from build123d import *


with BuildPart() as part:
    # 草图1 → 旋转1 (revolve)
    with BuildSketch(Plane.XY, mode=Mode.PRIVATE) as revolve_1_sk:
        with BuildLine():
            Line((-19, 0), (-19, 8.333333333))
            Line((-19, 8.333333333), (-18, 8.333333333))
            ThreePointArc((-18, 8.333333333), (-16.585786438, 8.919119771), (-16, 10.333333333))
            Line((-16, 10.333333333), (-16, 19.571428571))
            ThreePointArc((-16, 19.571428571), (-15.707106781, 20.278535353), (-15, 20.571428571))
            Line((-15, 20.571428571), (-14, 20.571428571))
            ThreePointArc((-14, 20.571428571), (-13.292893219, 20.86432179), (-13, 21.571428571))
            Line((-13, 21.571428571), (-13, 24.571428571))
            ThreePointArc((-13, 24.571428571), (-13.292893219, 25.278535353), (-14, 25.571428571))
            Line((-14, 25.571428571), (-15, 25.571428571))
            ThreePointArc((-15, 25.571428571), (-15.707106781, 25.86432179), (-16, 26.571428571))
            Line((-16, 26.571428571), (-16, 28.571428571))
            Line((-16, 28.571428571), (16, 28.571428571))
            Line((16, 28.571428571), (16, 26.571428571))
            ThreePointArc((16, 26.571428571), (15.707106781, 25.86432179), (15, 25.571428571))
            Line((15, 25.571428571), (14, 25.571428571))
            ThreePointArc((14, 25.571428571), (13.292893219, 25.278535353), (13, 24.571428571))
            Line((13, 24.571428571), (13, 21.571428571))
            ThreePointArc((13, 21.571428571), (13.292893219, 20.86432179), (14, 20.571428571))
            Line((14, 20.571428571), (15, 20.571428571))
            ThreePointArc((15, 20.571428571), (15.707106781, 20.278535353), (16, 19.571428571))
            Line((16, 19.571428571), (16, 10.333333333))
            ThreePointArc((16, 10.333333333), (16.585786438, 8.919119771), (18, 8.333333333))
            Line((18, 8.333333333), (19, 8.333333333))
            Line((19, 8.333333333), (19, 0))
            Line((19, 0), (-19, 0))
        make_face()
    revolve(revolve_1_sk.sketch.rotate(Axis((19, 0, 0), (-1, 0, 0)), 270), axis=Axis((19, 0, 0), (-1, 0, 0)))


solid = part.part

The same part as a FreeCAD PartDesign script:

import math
import FreeCAD as App
import Part
import Sketcher
from FreeCAD import Vector

doc = App.newDocument("Part")
body = doc.addObject("PartDesign::Body", "Body")

sketch1 = doc.addObject("Sketcher::SketchObject", "Sketch")
body.addObject(sketch1)
sketch1.AttachmentSupport = (doc.XY_Plane, [""])
sketch1.MapMode = "FlatFace"
sketch1.addGeometry(Part.LineSegment(Vector(-19, 8.3, 0), Vector(-19, 0, 0)), False)
sketch1.addGeometry(Part.LineSegment(Vector(-19, 0, 0), Vector(19, 0, 0)), False)
sketch1.addGeometry(Part.LineSegment(Vector(19, 0, 0), Vector(19, 8.3, 0)), False)
sketch1.addGeometry(Part.LineSegment(Vector(19, 8.3, 0), Vector(18, 8.3, 0)), False)
sketch1.addGeometry(Part.ArcOfCircle(Part.Circle(Vector(18, 10.3, 0), Vector(0, 0, 1), 2), math.radians(-180), math.radians(-90)), False)
sketch1.addGeometry(Part.LineSegment(Vector(16, 10.3, 0), Vector(16, 19.6, 0)), False)
sketch1.addGeometry(Part.ArcOfCircle(Part.Circle(Vector(15, 19.6, 0), Vector(0, 0, 1), 1), math.radians(0), math.radians(90)), False)
sketch1.addGeometry(Part.LineSegment(Vector(15, 20.6, 0), Vector(14, 20.6, 0)), False)
sketch1.addGeometry(Part.ArcOfCircle(Part.Circle(Vector(14, 21.6, 0), Vector(0, 0, 1), 1), math.radians(-180), math.radians(-90)), False)
sketch1.addGeometry(Part.LineSegment(Vector(13, 21.6, 0), Vector(13, 24.6, 0)), False)
sketch1.addGeometry(Part.ArcOfCircle(Part.Circle(Vector(14, 24.6, 0), Vector(0, 0, 1), 1), math.radians(90), math.radians(180)), False)
sketch1.addGeometry(Part.LineSegment(Vector(14, 25.6, 0), Vector(15, 25.6, 0)), False)
sketch1.addGeometry(Part.ArcOfCircle(Part.Circle(Vector(15, 26.6, 0), Vector(0, 0, 1), 1), math.radians(-90), math.radians(0)), False)
sketch1.addGeometry(Part.LineSegment(Vector(16, 26.6, 0), Vector(16, 28.6, 0)), False)
sketch1.addGeometry(Part.LineSegment(Vector(16, 28.6, 0), Vector(-16, 28.6, 0)), False)
sketch1.addGeometry(Part.LineSegment(Vector(-16, 28.6, 0), Vector(-16, 26.6, 0)), False)
sketch1.addGeometry(Part.ArcOfCircle(Part.Circle(Vector(-15, 26.6, 0), Vector(0, 0, 1), 1), math.radians(-180), math.radians(-90)), False)
sketch1.addGeometry(Part.LineSegment(Vector(-15, 25.6, 0), Vector(-14, 25.6, 0)), False)
sketch1.addGeometry(Part.ArcOfCircle(Part.Circle(Vector(-14, 24.6, 0), Vector(0, 0, 1), 1), math.radians(0), math.radians(90)), False)
sketch1.addGeometry(Part.LineSegment(Vector(-13, 24.6, 0), Vector(-13, 21.6, 0)), False)
sketch1.addGeometry(Part.ArcOfCircle(Part.Circle(Vector(-14, 21.6, 0), Vector(0, 0, 1), 1), math.radians(-90), math.radians(0)), False)
sketch1.addGeometry(Part.LineSegment(Vector(-14, 20.6, 0), Vector(-15, 20.6, 0)), False)
sketch1.addGeometry(Part.ArcOfCircle(Part.Circle(Vector(-15, 19.6, 0), Vector(0, 0, 1), 1), math.radians(90), math.radians(180)), False)
sketch1.addGeometry(Part.LineSegment(Vector(-16, 19.6, 0), Vector(-16, 10.3, 0)), False)
sketch1.addGeometry(Part.ArcOfCircle(Part.Circle(Vector(-18, 10.3, 0), Vector(0, 0, 1), 2), math.radians(-90), math.radians(0)), False)
sketch1.addGeometry(Part.LineSegment(Vector(-18, 8.3, 0), Vector(-19, 8.3, 0)), False)
sketch1.addConstraint(Sketcher.Constraint("Coincident", 0, 2, 1, 1))
sketch1.addConstraint(Sketcher.Constraint("Coincident", 1, 2, 2, 1))
sketch1.addConstraint(Sketcher.Constraint("Coincident", 2, 2, 3, 1))
sketch1.addConstraint(Sketcher.Constraint("Tangent", 3, 2, 4, 2))
sketch1.addConstraint(Sketcher.Constraint("Tangent", 4, 1, 5, 1))
sketch1.addConstraint(Sketcher.Constraint("Tangent", 5, 2, 6, 1))
sketch1.addConstraint(Sketcher.Constraint("Tangent", 6, 2, 7, 1))
sketch1.addConstraint(Sketcher.Constraint("Tangent", 7, 2, 8, 2))
sketch1.addConstraint(Sketcher.Constraint("Tangent", 8, 1, 9, 1))
sketch1.addConstraint(Sketcher.Constraint("Tangent", 9, 2, 10, 2))
sketch1.addConstraint(Sketcher.Constraint("Tangent", 10, 1, 11, 1))
sketch1.addConstraint(Sketcher.Constraint("Tangent", 11, 2, 12, 1))
sketch1.addConstraint(Sketcher.Constraint("Tangent", 12, 2, 13, 1))
sketch1.addConstraint(Sketcher.Constraint("Coincident", 13, 2, 14, 1))
sketch1.addConstraint(Sketcher.Constraint("Coincident", 14, 2, 15, 1))
sketch1.addConstraint(Sketcher.Constraint("Tangent", 15, 2, 16, 1))
sketch1.addConstraint(Sketcher.Constraint("Tangent", 16, 2, 17, 1))
sketch1.addConstraint(Sketcher.Constraint("Tangent", 17, 2, 18, 2))
sketch1.addConstraint(Sketcher.Constraint("Tangent", 18, 1, 19, 1))
sketch1.addConstraint(Sketcher.Constraint("Tangent", 19, 2, 20, 2))
sketch1.addConstraint(Sketcher.Constraint("Tangent", 20, 1, 21, 1))
sketch1.addConstraint(Sketcher.Constraint("Tangent", 21, 2, 22, 1))
sketch1.addConstraint(Sketcher.Constraint("Tangent", 22, 2, 23, 1))
sketch1.addConstraint(Sketcher.Constraint("Tangent", 23, 2, 24, 2))
sketch1.addConstraint(Sketcher.Constraint("Tangent", 24, 1, 25, 1))
sketch1.addConstraint(Sketcher.Constraint("Coincident", 25, 2, 0, 1))
sketch1.addConstraint(Sketcher.Constraint("Vertical", 0))
sketch1.addConstraint(Sketcher.Constraint("Horizontal", 1))
sketch1.addConstraint(Sketcher.Constraint("Vertical", 2))
sketch1.addConstraint(Sketcher.Constraint("Horizontal", 3))
sketch1.addConstraint(Sketcher.Constraint("Vertical", 5))
sketch1.addConstraint(Sketcher.Constraint("Horizontal", 7))
sketch1.addConstraint(Sketcher.Constraint("Vertical", 9))
sketch1.addConstraint(Sketcher.Constraint("Horizontal", 11))
sketch1.addConstraint(Sketcher.Constraint("Vertical", 13))
sketch1.addConstraint(Sketcher.Constraint("Horizontal", 14))
sketch1.addConstraint(Sketcher.Constraint("Vertical", 15))
sketch1.addConstraint(Sketcher.Constraint("Horizontal", 17))
sketch1.addConstraint(Sketcher.Constraint("Vertical", 19))
sketch1.addConstraint(Sketcher.Constraint("Horizontal", 21))
sketch1.addConstraint(Sketcher.Constraint("Vertical", 23))
sketch1.addConstraint(Sketcher.Constraint("Horizontal", 25))
sketch1.addConstraint(Sketcher.Constraint("Equal", 6, 8))
sketch1.addConstraint(Sketcher.Constraint("Equal", 8, 10))
sketch1.addConstraint(Sketcher.Constraint("Equal", 10, 12))
sketch1.addConstraint(Sketcher.Constraint("Equal", 12, 16))
sketch1.addConstraint(Sketcher.Constraint("Equal", 16, 18))
sketch1.addConstraint(Sketcher.Constraint("Equal", 18, 20))
sketch1.addConstraint(Sketcher.Constraint("Equal", 20, 22))
sketch1.addConstraint(Sketcher.Constraint("Equal", 4, 24))
sketch1.addConstraint(Sketcher.Constraint("Symmetric", 0, 2, 1, 2, -1, 1))
sketch1.addConstraint(Sketcher.Constraint("Symmetric", 12, 3, 16, 3, -2))
sketch1.addConstraint(Sketcher.Constraint("Symmetric", 8, 3, 20, 3, -2))
sketch1.addConstraint(Sketcher.Constraint("Symmetric", 4, 3, 24, 3, -2))
sketch1.addConstraint(Sketcher.Constraint("Vertical", 6, 3, 12, 3))
sketch1.addConstraint(Sketcher.Constraint("Equal", 3, 7))
sketch1.addConstraint(Sketcher.Constraint("Radius", 4, 2.0))
sketch1.addConstraint(Sketcher.Constraint("Radius", 6, 1.0))
sketch1.addConstraint(Sketcher.Constraint("DistanceX", 1, 1, 1, 2, 38.0))
sketch1.addConstraint(Sketcher.Constraint("DistanceX", 3, 2, 3, 1, 1.0))
sketch1.addConstraint(Sketcher.Constraint("DistanceY", 9, 1, 9, 2, 3.0))
sketch1.addConstraint(Sketcher.Constraint("DistanceY", 13, 1, 13, 2, 2.0))
sketch1.addConstraint(Sketcher.Constraint("DistanceY", 0, 2, 0, 1, 8.333333))
sketch1.addConstraint(Sketcher.Constraint("DistanceY", 5, 1, 5, 2, 9.238095))
revolution = doc.addObject("PartDesign::Revolution", "Revolution")
body.addObject(revolution)
revolution.Profile = sketch1
revolution.ReferenceAxis = (sketch1, ["H_Axis"])
revolution.Angle = 360

doc.recompute()
